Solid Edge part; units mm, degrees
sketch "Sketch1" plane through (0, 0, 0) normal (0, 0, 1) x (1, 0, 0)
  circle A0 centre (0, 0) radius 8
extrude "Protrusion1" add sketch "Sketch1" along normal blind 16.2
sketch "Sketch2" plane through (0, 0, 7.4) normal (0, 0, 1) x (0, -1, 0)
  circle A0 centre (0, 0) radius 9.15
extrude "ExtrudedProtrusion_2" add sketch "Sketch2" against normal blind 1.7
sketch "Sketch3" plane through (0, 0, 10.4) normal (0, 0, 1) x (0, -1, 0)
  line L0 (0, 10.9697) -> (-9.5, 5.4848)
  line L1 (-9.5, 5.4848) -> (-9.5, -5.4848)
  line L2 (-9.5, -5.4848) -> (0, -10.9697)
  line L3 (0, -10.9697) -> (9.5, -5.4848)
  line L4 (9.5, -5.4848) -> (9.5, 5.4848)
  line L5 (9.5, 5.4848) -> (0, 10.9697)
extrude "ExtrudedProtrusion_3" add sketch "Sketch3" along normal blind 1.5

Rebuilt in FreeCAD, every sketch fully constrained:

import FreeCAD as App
import Part
import Sketcher
from FreeCAD import Vector
Q = App.Units.Quantity

doc = App.newDocument("Part")
body = doc.addObject("PartDesign::Body", "Body")

# Sketch on XY plane
sketch1 = body.newObject("Sketcher::SketchObject", "Sketch")
sketch1.AttachmentSupport = (doc.getObject("XY_Plane"), [""])
sketch1.MapMode = "FlatFace"
sketch1.addGeometry(Part.Circle(Vector(0, 0, 0), Vector(0, 0, 1), 8), False)
sketch1.addConstraint(Sketcher.Constraint("Coincident", 0, 3, -1, 1))
sketch1.addConstraint(Sketcher.Constraint("Diameter", 0, Q("16 mm")))
pad1 = body.newObject("PartDesign::Pad", "Pad")
pad1.Profile = sketch1
pad1.Length = 16.2

# Sketch on XY plane
sketch2 = body.newObject("Sketcher::SketchObject", "Sketch001")
sketch2.AttachmentSupport = (doc.getObject("XY_Plane"), [""])
sketch2.MapMode = "FlatFace"
sketch2.AttachmentOffset = App.Placement(Vector(0, 0, 7.4), App.Rotation())
sketch2.addGeometry(Part.Circle(Vector(0, 0, 0), Vector(0, 0, 1), 9), False)
sketch2.addConstraint(Sketcher.Constraint("Coincident", 0, 3, -1, 1))
sketch2.addConstraint(Sketcher.Constraint("Diameter", 0, Q("18.3 mm")))
pad2 = body.newObject("PartDesign::Pad", "Pad001")
pad2.Profile = sketch2
pad2.Length = 1.7
pad2.Reversed = True

# Sketch on XY plane
sketch3 = body.newObject("Sketcher::SketchObject", "Sketch002")
sketch3.AttachmentSupport = (doc.getObject("XY_Plane"), [""])
sketch3.MapMode = "FlatFace"
sketch3.AttachmentOffset = App.Placement(Vector(0, 0, 10.4), App.Rotation())
sketch3.addGeometry(Part.LineSegment(Vector(5, -10, 0), Vector(11, 0, 0)), False)
sketch3.addGeometry(Part.LineSegment(Vector(11, 0, 0), Vector(5, 10, 0)), False)
sketch3.addGeometry(Part.LineSegment(Vector(5, 10, 0), Vector(-5, 10, 0)), False)
sketch3.addGeometry(Part.LineSegment(Vector(-5, 10, 0), Vector(-11, 0, 0)), False)
sketch3.addGeometry(Part.LineSegment(Vector(-11, 0, 0), Vector(-5, -10, 0)), False)
sketch3.addGeometry(Part.LineSegment(Vector(-5, -10, 0), Vector(5, -10, 0)), False)
sketch3.addConstraint(Sketcher.Constraint("Coincident", 0, 2, 1, 1))
sketch3.addConstraint(Sketcher.Constraint("Coincident", 1, 2, 2, 1))
sketch3.addConstraint(Sketcher.Constraint("Coincident", 2, 2, 3, 1))
sketch3.addConstraint(Sketcher.Constraint("Coincident", 3, 2, 4, 1))
sketch3.addConstraint(Sketcher.Constraint("Coincident", 4, 2, 5, 1))
sketch3.addConstraint(Sketcher.Constraint("Coincident", 5, 2, 0, 1))
sketch3.addConstraint(Sketcher.Constraint("Horizontal", 2))
sketch3.addConstraint(Sketcher.Constraint("Horizontal", 5))
sketch3.addConstraint(Sketcher.Constraint("Symmetric", 0, 2, 3, 2, -1, 1))
sketch3.addConstraint(Sketcher.Constraint("Symmetric", 1, 2, 4, 2, -1, 1))
sketch3.addConstraint(Sketcher.Constraint("PointOnObject", 0, 2, -1))
sketch3.addConstraint(Sketcher.Constraint("Parallel", 0, 3))
sketch3.addConstraint(Sketcher.Constraint("Vertical", 2, 2, 4, 2))
sketch3.addConstraint(Sketcher.Constraint("Angle", 0, Q("59.9997 deg")))
sketch3.addConstraint(Sketcher.Constraint("DistanceY", 4, 2, 2, 2, Q("19 mm")))
sketch3.addConstraint(Sketcher.Constraint("DistanceX", 2, 2, 2, 1, Q("10.9696 mm")))
pad3 = body.newObject("PartDesign::Pad", "Pad002")
pad3.Profile = sketch3
pad3.Length = 1.5

doc.recompute()
